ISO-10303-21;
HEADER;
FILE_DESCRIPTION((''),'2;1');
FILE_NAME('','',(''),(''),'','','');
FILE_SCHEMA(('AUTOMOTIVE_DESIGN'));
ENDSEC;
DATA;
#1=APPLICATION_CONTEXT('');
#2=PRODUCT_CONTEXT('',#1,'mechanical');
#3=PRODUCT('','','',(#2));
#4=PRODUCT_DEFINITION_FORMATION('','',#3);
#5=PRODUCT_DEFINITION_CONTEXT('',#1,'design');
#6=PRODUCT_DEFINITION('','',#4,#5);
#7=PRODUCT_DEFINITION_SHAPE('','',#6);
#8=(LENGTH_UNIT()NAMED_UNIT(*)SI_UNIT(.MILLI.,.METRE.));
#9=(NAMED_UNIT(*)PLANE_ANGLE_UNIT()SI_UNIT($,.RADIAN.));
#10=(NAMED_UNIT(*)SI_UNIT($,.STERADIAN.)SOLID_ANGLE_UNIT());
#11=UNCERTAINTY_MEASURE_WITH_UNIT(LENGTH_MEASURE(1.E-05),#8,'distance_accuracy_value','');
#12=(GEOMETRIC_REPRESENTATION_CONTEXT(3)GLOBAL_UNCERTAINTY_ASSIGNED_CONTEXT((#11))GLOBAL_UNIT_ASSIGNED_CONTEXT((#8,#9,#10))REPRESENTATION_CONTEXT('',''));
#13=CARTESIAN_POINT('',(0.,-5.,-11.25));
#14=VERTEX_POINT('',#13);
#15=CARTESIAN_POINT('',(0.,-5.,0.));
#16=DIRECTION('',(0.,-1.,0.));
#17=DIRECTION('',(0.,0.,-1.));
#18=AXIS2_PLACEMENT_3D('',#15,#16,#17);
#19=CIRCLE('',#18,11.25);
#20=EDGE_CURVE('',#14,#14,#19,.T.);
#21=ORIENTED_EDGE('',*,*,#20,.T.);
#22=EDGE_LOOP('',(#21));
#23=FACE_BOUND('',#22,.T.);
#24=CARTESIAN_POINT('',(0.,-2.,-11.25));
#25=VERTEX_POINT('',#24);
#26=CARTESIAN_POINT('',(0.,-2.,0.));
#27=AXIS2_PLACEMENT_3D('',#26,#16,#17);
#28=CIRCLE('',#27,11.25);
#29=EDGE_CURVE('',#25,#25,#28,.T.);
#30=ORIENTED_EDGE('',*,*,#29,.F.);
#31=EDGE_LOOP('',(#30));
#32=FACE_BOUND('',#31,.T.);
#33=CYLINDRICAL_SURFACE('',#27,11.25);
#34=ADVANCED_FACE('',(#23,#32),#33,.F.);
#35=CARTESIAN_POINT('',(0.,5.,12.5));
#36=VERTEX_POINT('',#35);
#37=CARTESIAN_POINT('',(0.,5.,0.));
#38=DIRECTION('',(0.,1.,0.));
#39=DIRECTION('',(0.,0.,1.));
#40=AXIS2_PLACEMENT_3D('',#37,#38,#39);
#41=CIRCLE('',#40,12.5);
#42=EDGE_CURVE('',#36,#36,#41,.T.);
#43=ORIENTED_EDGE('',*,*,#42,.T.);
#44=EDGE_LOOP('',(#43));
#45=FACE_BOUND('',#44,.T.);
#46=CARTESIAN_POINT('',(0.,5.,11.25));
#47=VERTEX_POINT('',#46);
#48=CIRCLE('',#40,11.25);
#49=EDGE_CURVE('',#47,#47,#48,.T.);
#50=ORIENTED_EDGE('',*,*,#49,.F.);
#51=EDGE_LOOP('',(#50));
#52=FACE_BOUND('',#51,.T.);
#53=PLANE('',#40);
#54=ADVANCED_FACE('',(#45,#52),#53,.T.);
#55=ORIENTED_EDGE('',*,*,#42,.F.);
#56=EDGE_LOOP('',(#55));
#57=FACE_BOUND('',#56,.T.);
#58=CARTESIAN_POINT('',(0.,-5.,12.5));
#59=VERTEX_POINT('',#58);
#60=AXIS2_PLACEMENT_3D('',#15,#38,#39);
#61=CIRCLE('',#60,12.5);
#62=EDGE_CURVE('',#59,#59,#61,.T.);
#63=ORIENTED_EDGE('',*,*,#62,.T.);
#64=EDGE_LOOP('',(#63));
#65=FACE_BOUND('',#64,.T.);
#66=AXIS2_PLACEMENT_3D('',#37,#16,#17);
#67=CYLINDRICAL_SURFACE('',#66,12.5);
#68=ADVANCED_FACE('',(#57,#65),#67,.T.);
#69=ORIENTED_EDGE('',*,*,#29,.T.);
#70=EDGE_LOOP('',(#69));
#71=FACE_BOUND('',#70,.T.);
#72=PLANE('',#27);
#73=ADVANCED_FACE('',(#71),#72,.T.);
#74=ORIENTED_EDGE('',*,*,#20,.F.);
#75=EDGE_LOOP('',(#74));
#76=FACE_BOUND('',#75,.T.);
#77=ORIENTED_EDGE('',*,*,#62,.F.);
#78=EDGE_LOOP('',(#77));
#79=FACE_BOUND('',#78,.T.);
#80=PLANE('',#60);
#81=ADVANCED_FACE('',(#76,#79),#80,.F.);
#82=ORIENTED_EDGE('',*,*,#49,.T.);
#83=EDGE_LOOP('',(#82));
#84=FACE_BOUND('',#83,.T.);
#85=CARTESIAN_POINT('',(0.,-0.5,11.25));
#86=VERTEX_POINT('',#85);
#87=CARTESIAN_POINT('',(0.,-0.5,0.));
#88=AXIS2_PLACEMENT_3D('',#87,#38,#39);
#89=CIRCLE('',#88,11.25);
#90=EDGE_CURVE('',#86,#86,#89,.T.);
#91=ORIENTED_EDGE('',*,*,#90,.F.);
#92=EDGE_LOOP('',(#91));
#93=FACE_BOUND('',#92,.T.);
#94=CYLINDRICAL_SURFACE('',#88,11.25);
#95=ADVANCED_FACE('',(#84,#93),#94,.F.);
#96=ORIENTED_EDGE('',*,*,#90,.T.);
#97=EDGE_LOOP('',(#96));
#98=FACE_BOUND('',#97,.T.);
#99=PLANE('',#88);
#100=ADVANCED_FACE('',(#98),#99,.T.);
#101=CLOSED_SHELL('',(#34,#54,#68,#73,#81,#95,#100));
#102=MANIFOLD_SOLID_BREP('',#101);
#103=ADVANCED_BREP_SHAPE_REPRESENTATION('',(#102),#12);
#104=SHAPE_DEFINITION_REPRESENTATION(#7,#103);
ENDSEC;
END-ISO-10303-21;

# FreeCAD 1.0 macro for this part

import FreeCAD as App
import Part
import Sketcher
from FreeCAD import Vector

doc = App.newDocument("Part")
body = doc.addObject("PartDesign::Body", "Body")

sketch1 = doc.addObject("Sketcher::SketchObject", "Sketch")
body.addObject(sketch1)
sketch1.AttachmentSupport = (doc.XZ_Plane, [""])
sketch1.MapMode = "FlatFace"
sketch1.addGeometry(Part.Circle(Vector(0, 0, 0), Vector(0, 0, 1), 12), False)
sketch1.addConstraint(Sketcher.Constraint("Coincident", 0, 3, -1, 1))
sketch1.addConstraint(Sketcher.Constraint("Diameter", 0, 25.0))
pad1 = doc.addObject("PartDesign::Pad", "Pad")
body.addObject(pad1)
pad1.Profile = sketch1
pad1.Length = 10
pad1.Midplane = True

sketch2 = doc.addObject("Sketcher::SketchObject", "Sketch001")
body.addObject(sketch2)
sketch2.AttachmentSupport = (doc.XZ_Plane, [""])
sketch2.MapMode = "FlatFace"
sketch2.AttachmentOffset = App.Placement(Vector(0, 0, -5), App.Rotation())
sketch2.addGeometry(Part.Circle(Vector(0, 0, 0), Vector(0, 0, 1), 11), False)
sketch2.addConstraint(Sketcher.Constraint("Coincident", 0, 3, -1, 1))
sketch2.addConstraint(Sketcher.Constraint("Diameter", 0, 22.5))
pocket1 = doc.addObject("PartDesign::Pocket", "Pocket")
body.addObject(pocket1)
pocket1.Profile = sketch2
pocket1.Length = 5.5
pocket1.Reversed = True

sketch3 = doc.addObject("Sketcher::SketchObject", "Sketch002")
body.addObject(sketch3)
sketch3.AttachmentSupport = (doc.XZ_Plane, [""])
sketch3.MapMode = "FlatFace"
sketch3.AttachmentOffset = App.Placement(Vector(0, 0, 2), App.Rotation())
sketch3.addGeometry(Part.Circle(Vector(0, 0, 0), Vector(0, 0, 1), 11), False)
sketch3.addConstraint(Sketcher.Constraint("Coincident", 0, 3, -1, 1))
sketch3.addConstraint(Sketcher.Constraint("Diameter", 0, 22.5))
pocket2 = doc.addObject("PartDesign::Pocket", "Pocket001")
body.addObject(pocket2)
pocket2.Profile = sketch3
pocket2.Length = 3
pocket2.Reversed = True

doc.recompute()
